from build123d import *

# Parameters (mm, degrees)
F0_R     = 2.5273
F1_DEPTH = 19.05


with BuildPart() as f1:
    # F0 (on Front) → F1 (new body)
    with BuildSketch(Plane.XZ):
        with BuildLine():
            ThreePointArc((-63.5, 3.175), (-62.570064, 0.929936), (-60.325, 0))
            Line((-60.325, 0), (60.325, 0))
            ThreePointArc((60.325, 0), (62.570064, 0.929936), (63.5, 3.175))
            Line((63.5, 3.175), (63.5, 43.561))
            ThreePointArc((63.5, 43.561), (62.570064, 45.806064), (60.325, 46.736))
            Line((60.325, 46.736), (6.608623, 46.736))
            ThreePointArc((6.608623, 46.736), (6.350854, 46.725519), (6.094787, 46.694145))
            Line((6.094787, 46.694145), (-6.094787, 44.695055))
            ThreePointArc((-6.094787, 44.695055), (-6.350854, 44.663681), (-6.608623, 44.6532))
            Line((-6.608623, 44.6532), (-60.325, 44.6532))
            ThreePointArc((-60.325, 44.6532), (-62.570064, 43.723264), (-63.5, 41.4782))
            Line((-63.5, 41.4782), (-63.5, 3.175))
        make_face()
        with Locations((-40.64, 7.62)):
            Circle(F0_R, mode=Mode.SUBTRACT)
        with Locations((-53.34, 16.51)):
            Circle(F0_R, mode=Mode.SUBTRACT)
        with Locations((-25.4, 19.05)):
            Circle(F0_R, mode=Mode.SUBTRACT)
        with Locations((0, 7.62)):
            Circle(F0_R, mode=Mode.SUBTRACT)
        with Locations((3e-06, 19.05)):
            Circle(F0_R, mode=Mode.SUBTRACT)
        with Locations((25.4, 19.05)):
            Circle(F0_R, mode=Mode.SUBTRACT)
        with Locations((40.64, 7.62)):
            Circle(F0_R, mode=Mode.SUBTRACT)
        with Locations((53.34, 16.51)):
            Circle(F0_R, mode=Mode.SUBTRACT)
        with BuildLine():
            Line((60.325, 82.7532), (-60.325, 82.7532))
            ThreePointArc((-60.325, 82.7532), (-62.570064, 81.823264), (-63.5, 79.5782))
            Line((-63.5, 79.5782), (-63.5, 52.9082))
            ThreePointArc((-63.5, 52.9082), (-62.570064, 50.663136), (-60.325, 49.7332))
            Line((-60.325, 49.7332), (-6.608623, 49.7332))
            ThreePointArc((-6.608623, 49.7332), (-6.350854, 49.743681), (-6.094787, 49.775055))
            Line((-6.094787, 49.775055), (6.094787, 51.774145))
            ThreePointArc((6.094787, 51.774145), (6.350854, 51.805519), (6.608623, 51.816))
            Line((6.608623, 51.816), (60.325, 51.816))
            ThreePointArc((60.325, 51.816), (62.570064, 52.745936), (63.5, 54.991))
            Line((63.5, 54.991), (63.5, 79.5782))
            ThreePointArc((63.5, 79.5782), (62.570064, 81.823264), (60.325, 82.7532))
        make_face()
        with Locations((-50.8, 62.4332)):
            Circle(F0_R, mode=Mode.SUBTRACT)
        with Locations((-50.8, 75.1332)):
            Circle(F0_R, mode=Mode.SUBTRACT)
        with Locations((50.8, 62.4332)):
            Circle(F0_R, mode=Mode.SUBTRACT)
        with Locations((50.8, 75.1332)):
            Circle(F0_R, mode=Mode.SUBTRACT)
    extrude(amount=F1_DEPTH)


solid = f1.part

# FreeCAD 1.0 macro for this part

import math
import FreeCAD as App
import Part
import Sketcher
Q = App.Units.Quantity

doc = App.newDocument("Part")
body = doc.addObject("PartDesign::Body", "Body")
body.AllowCompound = True

# Sketch on XZ plane
sketch1 = doc.addObject("Sketcher::SketchObject", "Sketch")
body.addObject(sketch1)
sketch1.AttachmentSupport = (doc.XZ_Plane, [""])
sketch1.MapMode = "FlatFace"
sketch1.addGeometry(Part.ArcOfCircle(Part.Circle(App.Vector(-60.325, 3.175, 0), App.Vector(0, 0, 1), 3.175), math.radians(-179.999998), math.radians(-90.000002)), False)
sketch1.addGeometry(Part.LineSegment(App.Vector(-60.325, 0, 0), App.Vector(60.325, 0, 0)), False)
sketch1.addGeometry(Part.ArcOfCircle(Part.Circle(App.Vector(60.325, 3.175, 0), App.Vector(0, 0, 1), 3.175), math.radians(-89.999998), math.radians(-0.000002)), False)
sketch1.addGeometry(Part.LineSegment(App.Vector(63.5, 3.175, 0), App.Vector(63.5, 43.561, 0)), False)
sketch1.addGeometry(Part.ArcOfCircle(Part.Circle(App.Vector(60.325, 43.561, 0), App.Vector(0, 0, 1), 3.175), math.radians(0.000002), math.radians(89.999998)), False)
sketch1.addGeometry(Part.LineSegment(App.Vector(60.325, 46.736, 0), App.Vector(6.608623, 46.736, 0)), False)
sketch1.addGeometry(Part.ArcOfCircle(Part.Circle(App.Vector(6.608622, 43.561016, 0), App.Vector(0, 0, 1), 3.174984), math.radians(89.999975), math.radians(99.313627)), False)
sketch1.addGeometry(Part.LineSegment(App.Vector(6.094787, 46.694145, 0), App.Vector(-6.094787, 44.695055, 0)), False)
sketch1.addGeometry(Part.ArcOfCircle(Part.Circle(App.Vector(-6.608622, 47.828184, 0), App.Vector(0, 0, 1), 3.174984), math.radians(-90.000025), math.radians(-80.686373)), False)
sketch1.addGeometry(Part.LineSegment(App.Vector(-6.608623, 44.6532, 0), App.Vector(-60.325, 44.6532, 0)), False)
sketch1.addGeometry(Part.ArcOfCircle(Part.Circle(App.Vector(-60.325, 41.4782, 0), App.Vector(0, 0, 1), 3.175), math.radians(90.000002), math.radians(179.999998)), False)
sketch1.addGeometry(Part.LineSegment(App.Vector(-63.5, 41.4782, 0), App.Vector(-63.5, 3.175, 0)), False)
sketch1.addGeometry(Part.Circle(App.Vector(-40.64, 7.62, 0), App.Vector(0, 0, 1), 2.5273), False)
sketch1.addGeometry(Part.Circle(App.Vector(0, 7.62, 0), App.Vector(0, 0, 1), 2.5273), False)
sketch1.addGeometry(Part.Circle(App.Vector(40.64, 7.62, 0), App.Vector(0, 0, 1), 2.5273), False)
sketch1.addGeometry(Part.Circle(App.Vector(-53.34, 16.51, 0), App.Vector(0, 0, 1), 2.5273), False)
sketch1.addGeometry(Part.Circle(App.Vector(-25.4, 19.05, 0), App.Vector(0, 0, 1), 2.5273), False)
sketch1.addGeometry(Part.Circle(App.Vector(53.34, 16.51, 0), App.Vector(0, 0, 1), 2.5273), False)
sketch1.addGeometry(Part.Circle(App.Vector(0.000003, 19.05, 0), App.Vector(0, 0, 1), 2.5273), False)
sketch1.addGeometry(Part.Circle(App.Vector(25.4, 19.05, 0), App.Vector(0, 0, 1), 2.5273), False)
sketch1.addGeometry(Part.LineSegment(App.Vector(60.325, 82.7532, 0), App.Vector(-60.325, 82.7532, 0)), False)
sketch1.addGeometry(Part.ArcOfCircle(Part.Circle(App.Vector(-60.325, 79.5782, 0), App.Vector(0, 0, 1), 3.175), math.radians(90.000002), math.radians(179.999998)), False)
sketch1.addGeometry(Part.LineSegment(App.Vector(-63.5, 79.5782, 0), App.Vector(-63.5, 52.9082, 0)), False)
sketch1.addGeometry(Part.ArcOfCircle(Part.Circle(App.Vector(-60.325, 52.9082, 0), App.Vector(0, 0, 1), 3.175), math.radians(-179.999998), math.radians(-90.000002)), False)
sketch1.addGeometry(Part.LineSegment(App.Vector(-60.325, 49.7332, 0), App.Vector(-6.608623, 49.7332, 0)), False)
sketch1.addGeometry(Part.ArcOfCircle(Part.Circle(App.Vector(-6.608622, 52.908184, 0), App.Vector(0, 0, 1), 3.174984), math.radians(-90.000025), math.radians(-80.686373)), False)
sketch1.addGeometry(Part.LineSegment(App.Vector(-6.094787, 49.775055, 0), App.Vector(6.094787, 51.774145, 0)), False)
sketch1.addGeometry(Part.ArcOfCircle(Part.Circle(App.Vector(6.608622, 48.641016, 0), App.Vector(0, 0, 1), 3.174984), math.radians(89.999975), math.radians(99.313627)), False)
sketch1.addGeometry(Part.LineSegment(App.Vector(6.608623, 51.816, 0), App.Vector(60.325, 51.816, 0)), False)
sketch1.addGeometry(Part.ArcOfCircle(Part.Circle(App.Vector(60.325, 54.991, 0), App.Vector(0, 0, 1), 3.175), math.radians(-89.999998), math.radians(-0.000002)), False)
sketch1.addGeometry(Part.LineSegment(App.Vector(63.5, 54.991, 0), App.Vector(63.5, 79.5782, 0)), False)
sketch1.addGeometry(Part.ArcOfCircle(Part.Circle(App.Vector(60.325, 79.5782, 0), App.Vector(0, 0, 1), 3.175), math.radians(0.000002), math.radians(89.999998)), False)
sketch1.addGeometry(Part.Circle(App.Vector(-50.8, 62.4332, 0), App.Vector(0, 0, 1), 2.5273), False)
sketch1.addGeometry(Part.Circle(App.Vector(50.8, 62.4332, 0), App.Vector(0, 0, 1), 2.5273), False)
sketch1.addGeometry(Part.Circle(App.Vector(-50.8, 75.1332, 0), App.Vector(0, 0, 1), 2.5273), False)
sketch1.addGeometry(Part.Circle(App.Vector(50.8, 75.1332, 0), App.Vector(0, 0, 1), 2.5273), False)
sketch1.addConstraint(Sketcher.Constraint("Tangent", 0, 2, 1, 1))
sketch1.addConstraint(Sketcher.Constraint("Tangent", 1, 2, 2, 1))
sketch1.addConstraint(Sketcher.Constraint("Tangent", 2, 2, 3, 1))
sketch1.addConstraint(Sketcher.Constraint("Tangent", 3, 2, 4, 1))
sketch1.addConstraint(Sketcher.Constraint("Tangent", 4, 2, 5, 1))
sketch1.addConstraint(Sketcher.Constraint("Tangent", 5, 2, 6, 1))
sketch1.addConstraint(Sketcher.Constraint("Tangent", 6, 2, 7, 1))
sketch1.addConstraint(Sketcher.Constraint("Tangent", 7, 2, 8, 2))
sketch1.addConstraint(Sketcher.Constraint("Tangent", 8, 1, 9, 1))
sketch1.addConstraint(Sketcher.Constraint("Tangent", 9, 2, 10, 1))
sketch1.addConstraint(Sketcher.Constraint("Tangent", 10, 2, 11, 1))
sketch1.addConstraint(Sketcher.Constraint("Tangent", 11, 2, 0, 1))
sketch1.addConstraint(Sketcher.Constraint("Tangent", 20, 2, 21, 1))
sketch1.addConstraint(Sketcher.Constraint("Tangent", 21, 2, 22, 1))
sketch1.addConstraint(Sketcher.Constraint("Tangent", 22, 2, 23, 1))
sketch1.addConstraint(Sketcher.Constraint("Tangent", 23, 2, 24, 1))
sketch1.addConstraint(Sketcher.Constraint("Tangent", 24, 2, 25, 1))
sketch1.addConstraint(Sketcher.Constraint("Tangent", 25, 2, 26, 1))
sketch1.addConstraint(Sketcher.Constraint("Tangent", 26, 2, 27, 2))
sketch1.addConstraint(Sketcher.Constraint("Tangent", 27, 1, 28, 1))
sketch1.addConstraint(Sketcher.Constraint("Tangent", 28, 2, 29, 1))
sketch1.addConstraint(Sketcher.Constraint("Tangent", 29, 2, 30, 1))
sketch1.addConstraint(Sketcher.Constraint("Tangent", 30, 2, 31, 1))
sketch1.addConstraint(Sketcher.Constraint("Tangent", 31, 2, 20, 1))
sketch1.addConstraint(Sketcher.Constraint("Horizontal", 1))
sketch1.addConstraint(Sketcher.Constraint("Vertical", 3))
sketch1.addConstraint(Sketcher.Constraint("Horizontal", 5))
sketch1.addConstraint(Sketcher.Constraint("Horizontal", 9))
sketch1.addConstraint(Sketcher.Constraint("Vertical", 11))
sketch1.addConstraint(Sketcher.Constraint("Horizontal", 20))
sketch1.addConstraint(Sketcher.Constraint("Vertical", 22))
sketch1.addConstraint(Sketcher.Constraint("Horizontal", 24))
sketch1.addConstraint(Sketcher.Constraint("Horizontal", 28))
sketch1.addConstraint(Sketcher.Constraint("Vertical", 30))
sketch1.addConstraint(Sketcher.Constraint("Equal", 0, 2))
sketch1.addConstraint(Sketcher.Constraint("Equal", 2, 4))
sketch1.addConstraint(Sketcher.Constraint("Equal", 6, 8))
sketch1.addConstraint(Sketcher.Constraint("Equal", 4, 10))
sketch1.addConstraint(Sketcher.Constraint("Equal", 12, 13))
sketch1.addConstraint(Sketcher.Constraint("Equal", 13, 14))
sketch1.addConstraint(Sketcher.Constraint("Equal", 14, 15))
sketch1.addConstraint(Sketcher.Constraint("Equal", 15, 16))
sketch1.addConstraint(Sketcher.Constraint("Equal", 16, 17))
sketch1.addConstraint(Sketcher.Constraint("Equal", 17, 18))
sketch1.addConstraint(Sketcher.Constraint("Equal", 18, 19))
sketch1.addConstraint(Sketcher.Constraint("Equal", 10, 21))
sketch1.addConstraint(Sketcher.Constraint("Equal", 21, 23))
sketch1.addConstraint(Sketcher.Constraint("Equal", 8, 25))
sketch1.addConstraint(Sketcher.Constraint("Equal", 25, 27))
sketch1.addConstraint(Sketcher.Constraint("Equal", 23, 29))
sketch1.addConstraint(Sketcher.Constraint("Equal", 29, 31))
sketch1.addConstraint(Sketcher.Constraint("Equal", 19, 32))
sketch1.addConstraint(Sketcher.Constraint("Equal", 32, 33))
sketch1.addConstraint(Sketcher.Constraint("Equal", 33, 34))
sketch1.addConstraint(Sketcher.Constraint("Equal", 34, 35))
sketch1.addConstraint(Sketcher.Constraint("Symmetric", 0, 2, 1, 2, -1, 1))
sketch1.addConstraint(Sketcher.Constraint("Symmetric", 12, 3, 14, 3, -2))
sketch1.addConstraint(Sketcher.Constraint("Symmetric", 15, 3, 17, 3, -2))
sketch1.addConstraint(Sketcher.Constraint("Symmetric", 16, 3, 19, 3, -2))
sketch1.addConstraint(Sketcher.Constraint("Symmetric", 32, 3, 33, 3, -2))
sketch1.addConstraint(Sketcher.Constraint("Symmetric", 34, 3, 35, 3, -2))
sketch1.addConstraint(Sketcher.Constraint("PointOnObject", 13, 3, -2))
sketch1.addConstraint(Sketcher.Constraint("Parallel", 7, 26))
sketch1.addConstraint(Sketcher.Constraint("Horizontal", 12, 3, 13, 3))
sketch1.addConstraint(Sketcher.Constraint("Horizontal", 16, 3, 18, 3))
sketch1.addConstraint(Sketcher.Constraint("Vertical", 10, 3, 21, 3))
sketch1.addConstraint(Sketcher.Constraint("Vertical", 8, 3, 25, 3))
sketch1.addConstraint(Sketcher.Constraint("Vertical", 6, 3, 27, 3))
sketch1.addConstraint(Sketcher.Constraint("Vertical", 4, 3, 29, 3))
sketch1.addConstraint(Sketcher.Constraint("Vertical", 32, 3, 34, 3))
sketch1.addConstraint(Sketcher.Constraint("Equal", 5, 9))
sketch1.addConstraint(Sketcher.Constraint("Diameter", 12, Q("0.199 in")))
sketch1.addConstraint(Sketcher.Constraint("DistanceX", 16, 3, -1, 1, Q("1 in")))
sketch1.addConstraint(Sketcher.Constraint("DistanceX", 32, 3, -1, 1, Q("2 in")))
sketch1.addConstraint(Sketcher.Constraint("Radius", 0, Q("0.125 in")))
sketch1.addConstraint(Sketcher.Constraint("DistanceX", 16, 3, 18, 3, Q("1.0000001 in")))
sketch1.addConstraint(Sketcher.Constraint("DistanceX", 1, 1, 1, 2, Q("4.75 in")))
sketch1.addConstraint(Sketcher.Constraint("DistanceY", 3, 1, 3, 2, Q("1.59 in")))
sketch1.addConstraint(Sketcher.Constraint("DistanceY", 22, 2, 22, 1, Q("1.05 in")))
sketch1.addConstraint(Sketcher.Constraint("DistanceX", 12, 3, -1, 1, Q("1.6 in")))
sketch1.addConstraint(Sketcher.Constraint("DistanceY", -1, 1, 12, 3, Q("0.3 in")))
sketch1.addConstraint(Sketcher.Constraint("DistanceX", 15, 3, -1, 1, Q("2.1 in")))
sketch1.addConstraint(Sketcher.Constraint("DistanceY", 15, 3, 16, 3, Q("0.1 in")))
sketch1.addConstraint(Sketcher.Constraint("DistanceY", 10, 3, 21, 3, Q("1.5 in")))
sketch1.addConstraint(Sketcher.Constraint("DistanceY", 32, 3, 34, 3, Q("0.5 in")))
sketch1.addConstraint(Sketcher.Constraint("DistanceY", 9, 2, 32, 3, Q("0.7 in")))
sketch1.addConstraint(Sketcher.Constraint("DistanceY", 11, 2, 11, 1, Q("1.508 in")))
sketch1.addConstraint(Sketcher.Constraint("DistanceY", -1, 1, 15, 3, Q("0.65 in")))
sketch1.addConstraint(Sketcher.Constraint("Radius", 6, 3.174984))
sketch1.addConstraint(Sketcher.Constraint("Distance", 7, 12.352412))
pad1 = doc.addObject("PartDesign::Pad", "Pad")
body.addObject(pad1)
pad1.Profile = sketch1
pad1.Length = Q("0.75 in")

doc.recompute()
